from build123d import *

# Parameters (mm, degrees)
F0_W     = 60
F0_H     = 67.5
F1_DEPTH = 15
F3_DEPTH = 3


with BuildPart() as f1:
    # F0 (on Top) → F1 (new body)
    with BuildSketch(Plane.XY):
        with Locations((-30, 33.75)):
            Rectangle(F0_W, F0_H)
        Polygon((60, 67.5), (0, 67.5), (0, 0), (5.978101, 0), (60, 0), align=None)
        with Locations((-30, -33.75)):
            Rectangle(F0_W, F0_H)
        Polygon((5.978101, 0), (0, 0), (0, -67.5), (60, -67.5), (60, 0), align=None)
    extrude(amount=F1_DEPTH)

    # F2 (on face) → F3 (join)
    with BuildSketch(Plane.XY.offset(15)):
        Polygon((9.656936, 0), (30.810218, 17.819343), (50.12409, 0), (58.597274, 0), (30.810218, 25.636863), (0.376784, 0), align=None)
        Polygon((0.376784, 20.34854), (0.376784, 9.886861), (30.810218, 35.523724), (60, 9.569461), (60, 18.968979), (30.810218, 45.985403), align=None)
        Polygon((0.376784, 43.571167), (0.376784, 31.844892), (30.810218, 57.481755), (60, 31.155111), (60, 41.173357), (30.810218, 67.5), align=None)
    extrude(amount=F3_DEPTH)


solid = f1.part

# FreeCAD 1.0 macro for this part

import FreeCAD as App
import Part
import Sketcher

V = App.Vector

doc = App.newDocument("Part")
body = doc.addObject("PartDesign::Body", "Body")

sketch1 = body.newObject("Sketcher::SketchObject", "Sketch")
sketch1.AttachmentSupport = (doc.getObject("XY_Plane"), [""])
sketch1.MapMode = "FlatFace"
sketch1.addGeometry([
    Part.LineSegment(V(-60, 68, 0), V(-60, -68, 0)),
    Part.LineSegment(V(-60, -68, 0), V(60, -68, 0)),
    Part.LineSegment(V(60, -68, 0), V(60, 68, 0)),
    Part.LineSegment(V(60, 68, 0), V(-60, 68, 0)),
], False)
sketch1.addConstraint([
    Sketcher.Constraint("Coincident", 0, 2, 1, 1),
    Sketcher.Constraint("Coincident", 1, 2, 2, 1),
    Sketcher.Constraint("Coincident", 2, 2, 3, 1),
    Sketcher.Constraint("Coincident", 3, 2, 0, 1),
    Sketcher.Constraint("Vertical", 0),
    Sketcher.Constraint("Horizontal", 1),
    Sketcher.Constraint("Vertical", 2),
    Sketcher.Constraint("Horizontal", 3),
    Sketcher.Constraint("Symmetric", 0, 2, 2, 2, -1, 1),
    Sketcher.Constraint("DistanceX", 1, 1, 1, 2, 120.0),
    Sketcher.Constraint("DistanceY", 0, 2, 0, 1, 135.0),
])
pad1 = body.newObject("PartDesign::Pad", "Pad")
pad1.Profile = sketch1
pad1.Length = 15

sketch2 = body.newObject("Sketcher::SketchObject", "Sketch001")
sketch2.AttachmentSupport = (doc.getObject("XY_Plane"), [""])
sketch2.MapMode = "FlatFace"
sketch2.AttachmentOffset = App.Placement(V(0, 0, 15), App.Rotation())
sketch2.addGeometry([
    Part.LineSegment(V(10, 0, 0), V(31, 18, 0)),
    Part.LineSegment(V(31, 18, 0), V(50, 0, 0)),
    Part.LineSegment(V(50, 0, 0), V(59, 0, 0)),
    Part.LineSegment(V(59, 0, 0), V(31, 26, 0)),
    Part.LineSegment(V(31, 26, 0), V(0, 0, 0)),
    Part.LineSegment(V(0, 0, 0), V(10, 0, 0)),
    Part.LineSegment(V(0, 20, 0), V(0, 10, 0)),
    Part.LineSegment(V(0, 10, 0), V(31, 36, 0)),
    Part.LineSegment(V(31, 36, 0), V(60, 10, 0)),
    Part.LineSegment(V(60, 10, 0), V(60, 19, 0)),
    Part.LineSegment(V(60, 19, 0), V(31, 46, 0)),
    Part.LineSegment(V(31, 46, 0), V(0, 20, 0)),
    Part.LineSegment(V(0, 44, 0), V(0, 32, 0)),
    Part.LineSegment(V(0, 32, 0), V(31, 57, 0)),
    Part.LineSegment(V(31, 57, 0), V(60, 31, 0)),
    Part.LineSegment(V(60, 31, 0), V(60, 41, 0)),
    Part.LineSegment(V(60, 41, 0), V(31, 68, 0)),
    Part.LineSegment(V(31, 68, 0), V(0, 44, 0)),
], False)
sketch2.addConstraint([
    Sketcher.Constraint("Coincident", 0, 2, 1, 1),
    Sketcher.Constraint("Coincident", 1, 2, 2, 1),
    Sketcher.Constraint("Coincident", 2, 2, 3, 1),
    Sketcher.Constraint("Coincident", 3, 2, 4, 1),
    Sketcher.Constraint("Coincident", 4, 2, 5, 1),
    Sketcher.Constraint("Coincident", 5, 2, 0, 1),
    Sketcher.Constraint("Coincident", 6, 2, 7, 1),
    Sketcher.Constraint("Coincident", 7, 2, 8, 1),
    Sketcher.Constraint("Coincident", 8, 2, 9, 1),
    Sketcher.Constraint("Coincident", 9, 2, 10, 1),
    Sketcher.Constraint("Coincident", 10, 2, 11, 1),
    Sketcher.Constraint("Coincident", 11, 2, 6, 1),
    Sketcher.Constraint("Coincident", 12, 2, 13, 1),
    Sketcher.Constraint("Coincident", 13, 2, 14, 1),
    Sketcher.Constraint("Coincident", 14, 2, 15, 1),
    Sketcher.Constraint("Coincident", 15, 2, 16, 1),
    Sketcher.Constraint("Coincident", 16, 2, 17, 1),
    Sketcher.Constraint("Coincident", 17, 2, 12, 1),
    Sketcher.Constraint("Horizontal", 2),
    Sketcher.Constraint("Horizontal", 5),
    Sketcher.Constraint("Vertical", 6),
    Sketcher.Constraint("Vertical", 9),
    Sketcher.Constraint("Vertical", 12),
    Sketcher.Constraint("Vertical", 15),
    Sketcher.Constraint("PointOnObject", 1, 2, -1),
    Sketcher.Constraint("PointOnObject", 4, 2, -1),
    Sketcher.Constraint("Parallel", 1, 3),
    Sketcher.Constraint("Parallel", 0, 4),
    Sketcher.Constraint("Parallel", 4, 7),
    Sketcher.Constraint("Parallel", 7, 11),
    Sketcher.Constraint("Parallel", 11, 13),
    Sketcher.Constraint("Parallel", 14, 16),
    Sketcher.Constraint("Vertical", 0, 2, 3, 2),
    Sketcher.Constraint("Vertical", 4, 2, 6, 2),
    Sketcher.Constraint("Vertical", 3, 2, 7, 2),
    Sketcher.Constraint("Vertical", 7, 2, 10, 2),
    Sketcher.Constraint("Vertical", 11, 2, 12, 2),
    Sketcher.Constraint("Vertical", 10, 2, 13, 2),
    Sketcher.Constraint("Vertical", 9, 2, 14, 2),
    Sketcher.Constraint("Vertical", 13, 2, 16, 2),
    Sketcher.Constraint("DistanceX", -1, 1, 8, 2, 60.0),
    Sketcher.Constraint("DistanceY", -1, 1, 16, 2, 67.5),
    Sketcher.Constraint("Distance", 3, 37.807),
    Sketcher.Constraint("DistanceX", 5, 1, 5, 2, 9.280152),
    Sketcher.Constraint("DistanceY", 6, 2, 6, 1, 10.461679),
    Sketcher.Constraint("Distance", 0, 27.658458),
    Sketcher.Constraint("Distance", 8, 39.059789),
    Sketcher.Constraint("Distance", 10, 39.77349),
    Sketcher.Constraint("Distance", 16, 39.308212),
    Sketcher.Constraint("Distance", 17, 38.714118),
    Sketcher.Constraint("DistanceX", 2, 1, 2, 2, 8.473184),
    Sketcher.Constraint("DistanceY", 9, 1, 9, 2, 9.399518),
    Sketcher.Constraint("DistanceY", 12, 2, 12, 1, 11.726275),
    Sketcher.Constraint("DistanceY", -1, 1, 6, 2, 9.886861),
])
pad2 = body.newObject("PartDesign::Pad", "Pad001")
pad2.Profile = sketch2
pad2.Length = 3

doc.recompute()
